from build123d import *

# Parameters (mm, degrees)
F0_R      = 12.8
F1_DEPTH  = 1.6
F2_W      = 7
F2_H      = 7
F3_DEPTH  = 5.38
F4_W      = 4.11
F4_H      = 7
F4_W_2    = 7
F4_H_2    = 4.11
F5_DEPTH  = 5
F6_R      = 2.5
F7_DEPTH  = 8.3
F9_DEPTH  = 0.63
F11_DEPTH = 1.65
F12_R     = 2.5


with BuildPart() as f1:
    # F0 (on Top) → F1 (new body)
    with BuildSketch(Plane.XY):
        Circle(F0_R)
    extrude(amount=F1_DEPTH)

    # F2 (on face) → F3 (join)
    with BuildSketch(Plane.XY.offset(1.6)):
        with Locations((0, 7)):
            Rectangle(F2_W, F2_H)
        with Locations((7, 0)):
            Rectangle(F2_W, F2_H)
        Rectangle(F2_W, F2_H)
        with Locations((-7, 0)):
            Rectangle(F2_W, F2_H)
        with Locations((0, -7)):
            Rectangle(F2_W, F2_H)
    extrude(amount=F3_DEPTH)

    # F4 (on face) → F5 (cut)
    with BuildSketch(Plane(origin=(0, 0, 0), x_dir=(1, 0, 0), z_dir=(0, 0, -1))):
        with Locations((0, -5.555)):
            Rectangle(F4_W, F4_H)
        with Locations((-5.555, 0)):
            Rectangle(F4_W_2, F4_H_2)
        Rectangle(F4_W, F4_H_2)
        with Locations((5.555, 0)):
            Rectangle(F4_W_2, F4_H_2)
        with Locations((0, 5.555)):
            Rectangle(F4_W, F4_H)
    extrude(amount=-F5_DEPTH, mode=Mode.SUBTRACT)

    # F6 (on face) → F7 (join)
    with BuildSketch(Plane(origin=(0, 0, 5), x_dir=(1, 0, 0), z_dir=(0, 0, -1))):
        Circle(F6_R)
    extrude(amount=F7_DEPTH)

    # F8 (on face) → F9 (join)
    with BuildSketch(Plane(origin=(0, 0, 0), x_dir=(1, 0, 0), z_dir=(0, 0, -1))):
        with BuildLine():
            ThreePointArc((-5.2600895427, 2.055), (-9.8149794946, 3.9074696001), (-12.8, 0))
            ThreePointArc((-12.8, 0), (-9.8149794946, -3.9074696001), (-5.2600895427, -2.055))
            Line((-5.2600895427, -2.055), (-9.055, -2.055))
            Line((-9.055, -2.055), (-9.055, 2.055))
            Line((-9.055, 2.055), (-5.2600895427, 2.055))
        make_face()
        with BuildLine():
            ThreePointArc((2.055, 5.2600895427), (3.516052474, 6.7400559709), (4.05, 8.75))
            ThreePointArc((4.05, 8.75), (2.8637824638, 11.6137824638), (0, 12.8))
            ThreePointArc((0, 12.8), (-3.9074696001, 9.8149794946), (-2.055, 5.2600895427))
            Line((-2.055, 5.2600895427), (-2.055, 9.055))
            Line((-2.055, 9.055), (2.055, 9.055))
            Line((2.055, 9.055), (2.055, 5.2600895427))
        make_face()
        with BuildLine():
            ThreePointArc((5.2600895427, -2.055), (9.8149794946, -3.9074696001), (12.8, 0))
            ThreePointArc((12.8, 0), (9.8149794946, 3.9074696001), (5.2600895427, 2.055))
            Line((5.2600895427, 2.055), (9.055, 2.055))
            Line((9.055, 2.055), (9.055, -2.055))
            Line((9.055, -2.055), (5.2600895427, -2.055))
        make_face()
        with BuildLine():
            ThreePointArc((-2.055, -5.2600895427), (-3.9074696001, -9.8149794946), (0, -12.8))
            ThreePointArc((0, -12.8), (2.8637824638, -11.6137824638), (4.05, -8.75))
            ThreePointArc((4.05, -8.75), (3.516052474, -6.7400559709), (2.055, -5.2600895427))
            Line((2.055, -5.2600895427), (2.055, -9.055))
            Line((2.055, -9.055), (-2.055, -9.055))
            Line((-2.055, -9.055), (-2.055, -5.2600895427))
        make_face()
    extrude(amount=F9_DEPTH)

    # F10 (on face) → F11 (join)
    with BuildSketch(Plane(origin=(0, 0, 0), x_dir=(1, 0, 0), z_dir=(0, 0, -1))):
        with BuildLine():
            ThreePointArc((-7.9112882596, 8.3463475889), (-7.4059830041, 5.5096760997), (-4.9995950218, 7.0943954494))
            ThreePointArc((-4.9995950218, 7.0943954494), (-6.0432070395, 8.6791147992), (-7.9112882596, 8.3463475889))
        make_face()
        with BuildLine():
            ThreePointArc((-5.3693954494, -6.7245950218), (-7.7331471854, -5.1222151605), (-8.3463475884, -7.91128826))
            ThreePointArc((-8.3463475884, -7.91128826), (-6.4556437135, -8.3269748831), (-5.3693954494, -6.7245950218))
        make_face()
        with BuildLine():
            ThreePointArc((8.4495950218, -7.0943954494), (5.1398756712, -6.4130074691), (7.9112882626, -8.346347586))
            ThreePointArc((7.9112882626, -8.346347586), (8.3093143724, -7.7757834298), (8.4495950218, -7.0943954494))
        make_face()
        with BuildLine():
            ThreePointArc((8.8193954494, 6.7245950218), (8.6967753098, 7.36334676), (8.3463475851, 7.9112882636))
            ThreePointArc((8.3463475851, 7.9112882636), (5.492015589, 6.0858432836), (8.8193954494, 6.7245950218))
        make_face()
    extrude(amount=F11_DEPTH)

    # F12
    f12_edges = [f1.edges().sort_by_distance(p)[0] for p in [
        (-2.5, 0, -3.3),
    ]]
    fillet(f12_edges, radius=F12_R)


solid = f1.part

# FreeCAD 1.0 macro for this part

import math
import FreeCAD as App
import Part
import Sketcher
from FreeCAD import Vector
Q = App.Units.Quantity


def edges_at(feature, points):
    """Names of the edges that pass closest to the given points."""
    edges = feature.Shape.Edges
    near = lambda p: min(range(len(edges)), key=lambda i: edges[i].distToShape(Part.Vertex(*p))[0])
    return sorted({f"Edge{near(p) + 1}" for p in points})

doc = App.newDocument("Part")
body = doc.addObject("PartDesign::Body", "Body")

sketch1 = body.newObject("Sketcher::SketchObject", "Sketch")
sketch1.AttachmentSupport = (doc.getObject("XY_Plane"), [""])
sketch1.MapMode = "FlatFace"
sketch1.addGeometry(Part.Circle(Vector(0, 0, 0), Vector(0, 0, 1), 13), False)
sketch1.addConstraint([
    Sketcher.Constraint("Coincident", 0, 3, -1, 1),
    Sketcher.Constraint("Diameter", 0, Q("25.6 mm")),
])
pad1 = body.newObject("PartDesign::Pad", "Pad")
pad1.Profile = sketch1
pad1.Length = 1.6

sketch2 = body.newObject("Sketcher::SketchObject", "Sketch001")
sketch2.AttachmentSupport = (doc.getObject("XY_Plane"), [""])
sketch2.MapMode = "FlatFace"
sketch2.AttachmentOffset = App.Placement(Vector(0, 0, 1.6), App.Rotation())
sketch2.addGeometry([
    Part.LineSegment(Vector(-4, 10, 0), Vector(-4, 4, 0)),
    Part.LineSegment(Vector(-4, 4, 0), Vector(-10, 4, 0)),
    Part.LineSegment(Vector(-10, 4, 0), Vector(-10, -4, 0)),
    Part.LineSegment(Vector(-10, -4, 0), Vector(-4, -4, 0)),
    Part.LineSegment(Vector(-4, -4, 0), Vector(-4, -10, 0)),
    Part.LineSegment(Vector(-4, -10, 0), Vector(4, -10, 0)),
    Part.LineSegment(Vector(4, -10, 0), Vector(4, -4, 0)),
    Part.LineSegment(Vector(4, -4, 0), Vector(10, -4, 0)),
    Part.LineSegment(Vector(10, -4, 0), Vector(10, 4, 0)),
    Part.LineSegment(Vector(10, 4, 0), Vector(4, 4, 0)),
    Part.LineSegment(Vector(4, 4, 0), Vector(4, 10, 0)),
    Part.LineSegment(Vector(4, 10, 0), Vector(-4, 10, 0)),
], False)
sketch2.addConstraint([
    Sketcher.Constraint("Coincident", 0, 2, 1, 1),
    Sketcher.Constraint("Coincident", 1, 2, 2, 1),
    Sketcher.Constraint("Coincident", 2, 2, 3, 1),
    Sketcher.Constraint("Coincident", 3, 2, 4, 1),
    Sketcher.Constraint("Coincident", 4, 2, 5, 1),
    Sketcher.Constraint("Coincident", 5, 2, 6, 1),
    Sketcher.Constraint("Coincident", 6, 2, 7, 1),
    Sketcher.Constraint("Coincident", 7, 2, 8, 1),
    Sketcher.Constraint("Coincident", 8, 2, 9, 1),
    Sketcher.Constraint("Coincident", 9, 2, 10, 1),
    Sketcher.Constraint("Coincident", 10, 2, 11, 1),
    Sketcher.Constraint("Coincident", 11, 2, 0, 1),
    Sketcher.Constraint("Vertical", 0),
    Sketcher.Constraint("Horizontal", 1),
    Sketcher.Constraint("Vertical", 2),
    Sketcher.Constraint("Horizontal", 3),
    Sketcher.Constraint("Vertical", 4),
    Sketcher.Constraint("Horizontal", 5),
    Sketcher.Constraint("Vertical", 6),
    Sketcher.Constraint("Horizontal", 7),
    Sketcher.Constraint("Vertical", 8),
    Sketcher.Constraint("Horizontal", 9),
    Sketcher.Constraint("Vertical", 10),
    Sketcher.Constraint("Horizontal", 11),
    Sketcher.Constraint("Symmetric", 0, 2, 6, 2, -1, 1),
    Sketcher.Constraint("Symmetric", 2, 2, 8, 2, -1, 1),
    Sketcher.Constraint("Symmetric", 4, 2, 10, 2, -1, 1),
    Sketcher.Constraint("Symmetric", 3, 2, 6, 2, -2),
    Sketcher.Constraint("Equal", 3, 5),
    Sketcher.Constraint("Equal", 11, 0),
    Sketcher.Constraint("Equal", 0, 2),
    Sketcher.Constraint("DistanceX", 1, 2, 1, 1, Q("7 mm")),
])
pad2 = body.newObject("PartDesign::Pad", "Pad001")
pad2.Profile = sketch2
pad2.Length = 5.38

sketch3 = body.newObject("Sketcher::SketchObject", "Sketch002")
sketch3.AttachmentSupport = (doc.getObject("XY_Plane"), [""])
sketch3.MapMode = "FlatFace"
sketch3.addGeometry([
    Part.LineSegment(Vector(-2.1, 2.1, 0), Vector(-2.1, 9.1, 0)),
    Part.LineSegment(Vector(-2.1, 9.1, 0), Vector(2.1, 9.1, 0)),
    Part.LineSegment(Vector(2.1, 9.1, 0), Vector(2.1, 2.1, 0)),
    Part.LineSegment(Vector(2.1, 2.1, 0), Vector(9.1, 2.1, 0)),
    Part.LineSegment(Vector(9.1, 2.1, 0), Vector(9.1, -2.1, 0)),
    Part.LineSegment(Vector(9.1, -2.1, 0), Vector(2.1, -2.1, 0)),
    Part.LineSegment(Vector(2.1, -2.1, 0), Vector(2.1, -9.1, 0)),
    Part.LineSegment(Vector(2.1, -9.1, 0), Vector(-2.1, -9.1, 0)),
    Part.LineSegment(Vector(-2.1, -9.1, 0), Vector(-2.1, -2.1, 0)),
    Part.LineSegment(Vector(-2.1, -2.1, 0), Vector(-9.1, -2.1, 0)),
    Part.LineSegment(Vector(-9.1, -2.1, 0), Vector(-9.1, 2.1, 0)),
    Part.LineSegment(Vector(-9.1, 2.1, 0), Vector(-2.1, 2.1, 0)),
], False)
sketch3.addConstraint([
    Sketcher.Constraint("Coincident", 0, 2, 1, 1),
    Sketcher.Constraint("Coincident", 1, 2, 2, 1),
    Sketcher.Constraint("Coincident", 2, 2, 3, 1),
    Sketcher.Constraint("Coincident", 3, 2, 4, 1),
    Sketcher.Constraint("Coincident", 4, 2, 5, 1),
    Sketcher.Constraint("Coincident", 5, 2, 6, 1),
    Sketcher.Constraint("Coincident", 6, 2, 7, 1),
    Sketcher.Constraint("Coincident", 7, 2, 8, 1),
    Sketcher.Constraint("Coincident", 8, 2, 9, 1),
    Sketcher.Constraint("Coincident", 9, 2, 10, 1),
    Sketcher.Constraint("Coincident", 10, 2, 11, 1),
    Sketcher.Constraint("Coincident", 11, 2, 0, 1),
    Sketcher.Constraint("Vertical", 0),
    Sketcher.Constraint("Horizontal", 1),
    Sketcher.Constraint("Vertical", 2),
    Sketcher.Constraint("Horizontal", 3),
    Sketcher.Constraint("Vertical", 4),
    Sketcher.Constraint("Horizontal", 5),
    Sketcher.Constraint("Vertical", 6),
    Sketcher.Constraint("Horizontal", 7),
    Sketcher.Constraint("Vertical", 8),
    Sketcher.Constraint("Horizontal", 9),
    Sketcher.Constraint("Vertical", 10),
    Sketcher.Constraint("Horizontal", 11),
    Sketcher.Constraint("Symmetric", 0, 2, 6, 2, -1, 1),
    Sketcher.Constraint("Symmetric", 2, 2, 8, 2, -1, 1),
    Sketcher.Constraint("Symmetric", 4, 2, 10, 2, -1, 1),
    Sketcher.Constraint("Symmetric", 5, 2, 8, 2, -2),
    Sketcher.Constraint("Equal", 11, 0),
    Sketcher.Constraint("Equal", 7, 4),
    Sketcher.Constraint("DistanceX", 3, 1, 3, 2, Q("7 mm")),
    Sketcher.Constraint("DistanceX", 1, 1, 1, 2, Q("4.11 mm")),
])
pocket1 = body.newObject("PartDesign::Pocket", "Pocket")
pocket1.Profile = sketch3
pocket1.Length = 5
pocket1.Reversed = True

sketch4 = body.newObject("Sketcher::SketchObject", "Sketch003")
sketch4.AttachmentSupport = (doc.getObject("XY_Plane"), [""])
sketch4.MapMode = "FlatFace"
sketch4.AttachmentOffset = App.Placement(Vector(0, 0, 5), App.Rotation())
sketch4.addGeometry(Part.Circle(Vector(0, 0, 0), Vector(0, 0, 1), 2.5), False)
sketch4.addConstraint([
    Sketcher.Constraint("Coincident", 0, 3, -1, 1),
    Sketcher.Constraint("Diameter", 0, Q("5 mm")),
])
pad3 = body.newObject("PartDesign::Pad", "Pad002")
pad3.Profile = sketch4
pad3.Length = 8.3
pad3.Reversed = True

sketch5 = body.newObject("Sketcher::SketchObject", "Sketch004")
sketch5.AttachmentSupport = (doc.getObject("XY_Plane"), [""])
sketch5.MapMode = "FlatFace"
sketch5.addGeometry([
    Part.ArcOfCircle(Part.Circle(Vector(-8.8, 0, 0), Vector(0, 0, 1), 4), math.radians(180), math.radians(330)),
    Part.ArcOfCircle(Part.Circle(Vector(-8.8, 0, 0), Vector(0, 0, 1), 4), math.radians(30), math.radians(180)),
    Part.LineSegment(Vector(-5.3, 2.1, 0), Vector(-9.1, 2.1, 0)),
    Part.LineSegment(Vector(-9.1, 2.1, 0), Vector(-9.1, -2.1, 0)),
    Part.LineSegment(Vector(-9.1, -2.1, 0), Vector(-5.3, -2.1, 0)),
    Part.ArcOfCircle(Part.Circle(Vector(0, -8.8, 0), Vector(0, 0, 1), 4), math.radians(-90), math.radians(60)),
    Part.ArcOfCircle(Part.Circle(Vector(0, -8.8, 0), Vector(0, 0, 1), 4), math.radians(120), math.radians(270)),
    Part.LineSegment(Vector(-2.1, -5.3, 0), Vector(-2.1, -9.1, 0)),
    Part.LineSegment(Vector(-2.1, -9.1, 0), Vector(2.1, -9.1, 0)),
    Part.LineSegment(Vector(2.1, -9.1, 0), Vector(2.1, -5.3, 0)),
    Part.ArcOfCircle(Part.Circle(Vector(8.8, 0, 0), Vector(0, 0, 1), 4), math.radians(0), math.radians(150)),
    Part.ArcOfCircle(Part.Circle(Vector(8.8, 0, 0), Vector(0, 0, 1), 4), math.radians(-150), math.radians(0)),
    Part.LineSegment(Vector(5.3, -2.1, 0), Vector(9.1, -2.1, 0)),
    Part.LineSegment(Vector(9.1, -2.1, 0), Vector(9.1, 2.1, 0)),
    Part.LineSegment(Vector(9.1, 2.1, 0), Vector(5.3, 2.1, 0)),
    Part.ArcOfCircle(Part.Circle(Vector(0, 8.8, 0), Vector(0, 0, 1), 4), math.radians(90), math.radians(240)),
    Part.ArcOfCircle(Part.Circle(Vector(0, 8.8, 0), Vector(0, 0, 1), 4), math.radians(-60), math.radians(90)),
    Part.LineSegment(Vector(2.1, 5.3, 0), Vector(2.1, 9.1, 0)),
    Part.LineSegment(Vector(2.1, 9.1, 0), Vector(-2.1, 9.1, 0)),
    Part.LineSegment(Vector(-2.1, 9.1, 0), Vector(-2.1, 5.3, 0)),
], False)
sketch5.addConstraint([
    Sketcher.Constraint("Tangent", 0, 1, 1, 2),
    Sketcher.Constraint("Coincident", 1, 1, 2, 1),
    Sketcher.Constraint("Coincident", 2, 2, 3, 1),
    Sketcher.Constraint("Coincident", 3, 2, 4, 1),
    Sketcher.Constraint("Coincident", 4, 2, 0, 2),
    Sketcher.Constraint("Tangent", 5, 1, 6, 2),
    Sketcher.Constraint("Coincident", 6, 1, 7, 1),
    Sketcher.Constraint("Coincident", 7, 2, 8, 1),
    Sketcher.Constraint("Coincident", 8, 2, 9, 1),
    Sketcher.Constraint("Coincident", 9, 2, 5, 2),
    Sketcher.Constraint("Tangent", 10, 1, 11, 2),
    Sketcher.Constraint("Coincident", 11, 1, 12, 1),
    Sketcher.Constraint("Coincident", 12, 2, 13, 1),
    Sketcher.Constraint("Coincident", 13, 2, 14, 1),
    Sketcher.Constraint("Coincident", 14, 2, 10, 2),
    Sketcher.Constraint("Tangent", 15, 1, 16, 2),
    Sketcher.Constraint("Coincident", 16, 1, 17, 1),
    Sketcher.Constraint("Coincident", 17, 2, 18, 1),
    Sketcher.Constraint("Coincident", 18, 2, 19, 1),
    Sketcher.Constraint("Coincident", 19, 2, 15, 2),
    Sketcher.Constraint("Horizontal", 2),
    Sketcher.Constraint("Vertical", 3),
    Sketcher.Constraint("Horizontal", 4),
    Sketcher.Constraint("Vertical", 7),
    Sketcher.Constraint("Horizontal", 8),
    Sketcher.Constraint("Vertical", 9),
    Sketcher.Constraint("Horizontal", 12),
    Sketcher.Constraint("Vertical", 13),
    Sketcher.Constraint("Horizontal", 14),
    Sketcher.Constraint("Vertical", 17),
    Sketcher.Constraint("Horizontal", 18),
    Sketcher.Constraint("Vertical", 19),
    Sketcher.Constraint("Equal", 0, 1),
    Sketcher.Constraint("Equal", 1, 5),
    Sketcher.Constraint("Equal", 5, 6),
    Sketcher.Constraint("Equal", 6, 10),
    Sketcher.Constraint("Equal", 10, 11),
    Sketcher.Constraint("Equal", 11, 15),
    Sketcher.Constraint("Equal", 15, 16),
    Sketcher.Constraint("Symmetric", 0, 3, 10, 3, -1, 1),
    Sketcher.Constraint("Symmetric", 5, 3, 15, 3, -1, 1),
    Sketcher.Constraint("Symmetric", 2, 2, 12, 2, -1, 1),
    Sketcher.Constraint("Symmetric", 7, 2, 17, 2, -1, 1),
    Sketcher.Constraint("Symmetric", 6, 1, 9, 2, -2),
    Sketcher.Constraint("Symmetric", 4, 2, 11, 1, -2),
    Sketcher.Constraint("PointOnObject", 0, 1, -1),
    Sketcher.Constraint("PointOnObject", 5, 1, -2),
    Sketcher.Constraint("PointOnObject", 10, 1, -1),
    Sketcher.Constraint("PointOnObject", 15, 1, -2),
    Sketcher.Constraint("Horizontal", 2, 2, 13, 2),
    Sketcher.Constraint("Horizontal", 16, 1, 19, 2),
    Sketcher.Constraint("Equal", 18, 3),
    Sketcher.Constraint("Equal", 14, 7),
    Sketcher.Constraint("Radius", 0, Q("4.05 mm")),
    Sketcher.Constraint("DistanceX", 3, 2, 6, 1, Q("7 mm")),
    Sketcher.Constraint("DistanceY", 7, 2, 4, 2, Q("7 mm")),
    Sketcher.Constraint("DistanceX", 8, 1, 8, 2, Q("4.11 mm")),
    Sketcher.Constraint("DistanceX", 0, 1, -1, 1, Q("12.8 mm")),
])
pad4 = body.newObject("PartDesign::Pad", "Pad003")
pad4.Profile = sketch5
pad4.Length = 0.63
pad4.Reversed = True

sketch6 = body.newObject("Sketcher::SketchObject", "Sketch005")
sketch6.AttachmentSupport = (doc.getObject("XY_Plane"), [""])
sketch6.MapMode = "FlatFace"
sketch6.addGeometry([
    Part.ArcOfCircle(Part.Circle(Vector(-6.7, -7.1, 0), Vector(0, 0, 1), 1.7), math.radians(0), math.radians(227)),
    Part.ArcOfCircle(Part.Circle(Vector(-6.7, -7.1, 0), Vector(0, 0, 1), 1.7), math.radians(-133), math.radians(0)),
    Part.ArcOfCircle(Part.Circle(Vector(-7.1, 6.7, 0), Vector(0, 0, 1), 1.7), math.radians(137), math.radians(360)),
    Part.ArcOfCircle(Part.Circle(Vector(-7.1, 6.7, 0), Vector(0, 0, 1), 1.7), math.radians(0), math.radians(137)),
    Part.ArcOfCircle(Part.Circle(Vector(6.7, 7.1, 0), Vector(0, 0, 1), 1.7), math.radians(47), math.radians(360)),
    Part.ArcOfCircle(Part.Circle(Vector(6.7, 7.1, 0), Vector(0, 0, 1), 1.7), math.radians(0), math.radians(47)),
    Part.ArcOfCircle(Part.Circle(Vector(7.1, -6.7, 0), Vector(0, 0, 1), 1.7), math.radians(-43), math.radians(0)),
    Part.ArcOfCircle(Part.Circle(Vector(7.1, -6.7, 0), Vector(0, 0, 1), 1.7), math.radians(0), math.radians(317)),
], False)
sketch6.addConstraint([
    Sketcher.Constraint("Tangent", 0, 1, 1, 2),
    Sketcher.Constraint("Coincident", 1, 1, 0, 2),
    Sketcher.Constraint("Tangent", 2, 1, 3, 2),
    Sketcher.Constraint("Coincident", 3, 1, 2, 2),
    Sketcher.Constraint("Tangent", 4, 1, 5, 2),
    Sketcher.Constraint("Coincident", 5, 1, 4, 2),
    Sketcher.Constraint("Tangent", 6, 1, 7, 2),
    Sketcher.Constraint("Coincident", 7, 1, 6, 2),
    Sketcher.Constraint("Equal", 1, 2),
    Sketcher.Constraint("Equal", 3, 4),
    Sketcher.Constraint("Equal", 5, 6),
    Sketcher.Constraint("Symmetric", 0, 3, 4, 3, -1, 1),
    Sketcher.Constraint("Symmetric", 2, 3, 6, 3, -1, 1),
    Sketcher.Constraint("Horizontal", 1, 3, 0, 1),
    Sketcher.Constraint("Horizontal", 2, 3, 3, 1),
    Sketcher.Constraint("Horizontal", 4, 3, 5, 1),
    Sketcher.Constraint("Horizontal", 6, 3, 7, 1),
    Sketcher.Constraint("Radius", 0, Q("1.725 mm")),
    Sketcher.Constraint("DistanceX", 2, 3, 0, 3, Q("0.3698 mm")),
    Sketcher.Constraint("DistanceY", 2, 3, 4, 3, Q("0.3698 mm")),
    Sketcher.Constraint("DistanceX", 1, 1, -1, 1, Q("7.911288 mm")),
    Sketcher.Constraint("DistanceY", -1, 1, 2, 1, Q("7.911288 mm")),
    Sketcher.Constraint("DistanceX", -1, 1, 4, 1, Q("7.911288 mm")),
    Sketcher.Constraint("DistanceY", 6, 1, -1, 1, Q("7.911288 mm")),
    Sketcher.Constraint("DistanceY", 0, 3, 2, 3, Q("13.81899 mm")),
    Sketcher.Constraint("DistanceX", 2, 3, 4, 3, Q("13.81899 mm")),
])
pad5 = body.newObject("PartDesign::Pad", "Pad004")
pad5.Profile = sketch6
pad5.Length = 1.65
pad5.Reversed = True
doc.recompute()

fillet = body.newObject("PartDesign::Fillet", "Fillet")
fillet.Base = (pad5, edges_at(pad5, [(-2.5, 0, -3.3)]))
fillet.Radius = 2.5

doc.recompute()
